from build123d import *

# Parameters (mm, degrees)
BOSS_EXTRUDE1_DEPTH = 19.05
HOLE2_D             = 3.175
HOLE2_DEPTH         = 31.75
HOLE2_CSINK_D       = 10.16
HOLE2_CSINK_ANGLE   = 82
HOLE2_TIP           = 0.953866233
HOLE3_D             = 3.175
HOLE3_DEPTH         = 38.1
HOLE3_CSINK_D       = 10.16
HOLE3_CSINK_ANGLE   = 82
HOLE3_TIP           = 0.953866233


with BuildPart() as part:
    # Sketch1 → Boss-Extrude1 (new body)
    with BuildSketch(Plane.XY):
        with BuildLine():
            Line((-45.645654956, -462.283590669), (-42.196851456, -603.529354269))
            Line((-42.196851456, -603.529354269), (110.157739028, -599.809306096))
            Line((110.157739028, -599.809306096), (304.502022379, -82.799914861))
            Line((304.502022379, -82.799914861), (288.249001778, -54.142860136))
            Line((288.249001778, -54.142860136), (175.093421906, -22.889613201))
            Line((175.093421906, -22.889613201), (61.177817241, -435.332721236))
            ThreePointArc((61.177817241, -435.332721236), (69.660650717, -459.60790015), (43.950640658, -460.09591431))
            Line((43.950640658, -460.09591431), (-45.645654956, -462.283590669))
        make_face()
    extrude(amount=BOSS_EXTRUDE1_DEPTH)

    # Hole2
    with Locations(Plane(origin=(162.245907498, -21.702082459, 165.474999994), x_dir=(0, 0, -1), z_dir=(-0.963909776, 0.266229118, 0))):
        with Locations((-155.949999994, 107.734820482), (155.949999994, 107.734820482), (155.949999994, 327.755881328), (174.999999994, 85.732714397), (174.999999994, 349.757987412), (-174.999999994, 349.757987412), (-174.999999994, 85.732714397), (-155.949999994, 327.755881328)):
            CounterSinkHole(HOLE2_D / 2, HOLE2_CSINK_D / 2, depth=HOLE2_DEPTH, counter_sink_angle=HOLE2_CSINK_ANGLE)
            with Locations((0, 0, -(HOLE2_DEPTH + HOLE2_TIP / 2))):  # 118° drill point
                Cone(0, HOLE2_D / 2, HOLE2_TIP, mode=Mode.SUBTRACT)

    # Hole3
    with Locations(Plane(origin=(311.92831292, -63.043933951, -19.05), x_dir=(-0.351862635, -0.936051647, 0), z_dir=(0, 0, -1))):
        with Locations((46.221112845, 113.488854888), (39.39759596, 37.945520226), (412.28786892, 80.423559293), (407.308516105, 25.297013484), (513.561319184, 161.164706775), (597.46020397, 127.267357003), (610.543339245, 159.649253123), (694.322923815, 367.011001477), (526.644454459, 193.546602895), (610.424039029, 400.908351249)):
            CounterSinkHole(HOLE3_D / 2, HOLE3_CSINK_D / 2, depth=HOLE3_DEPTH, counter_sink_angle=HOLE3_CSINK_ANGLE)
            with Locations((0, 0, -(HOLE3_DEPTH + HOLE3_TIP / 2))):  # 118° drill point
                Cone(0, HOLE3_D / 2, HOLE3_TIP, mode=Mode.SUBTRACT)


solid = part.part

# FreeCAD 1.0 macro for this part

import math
import FreeCAD as App
import Part
import Sketcher
from FreeCAD import Vector
Q = App.Units.Quantity

doc = App.newDocument("Part")
body = doc.addObject("PartDesign::Body", "Body")

sketch1 = body.newObject("Sketcher::SketchObject", "Sketch")
sketch1.AttachmentSupport = (doc.getObject("XY_Plane"), [""])
sketch1.MapMode = "FlatFace"
sketch1.addGeometry(Part.LineSegment(Vector(-45.645655, -462.283591, 0), Vector(-42.196851, -603.529354, 0)), False)
sketch1.addGeometry(Part.LineSegment(Vector(-42.196851, -603.529354, 0), Vector(110.157739, -599.809306, 0)), False)
sketch1.addGeometry(Part.LineSegment(Vector(110.157739, -599.809306, 0), Vector(304.502022, -82.799915, 0)), False)
sketch1.addGeometry(Part.LineSegment(Vector(304.502022, -82.799915, 0), Vector(288.249002, -54.14286, 0)), False)
sketch1.addGeometry(Part.LineSegment(Vector(288.249002, -54.14286, 0), Vector(175.093422, -22.889613, 0)), False)
sketch1.addGeometry(Part.LineSegment(Vector(175.093422, -22.889613, 0), Vector(61.177817, -435.332721, 0)), False)
sketch1.addGeometry(Part.ArcOfCircle(Part.Circle(Vector(56.628931, -450.542036, 0), Vector(0, 0, 1), 15.875), math.radians(-142.999707), math.radians(73.348834)), False)
sketch1.addGeometry(Part.LineSegment(Vector(43.950641, -460.095914, 0), Vector(-45.645655, -462.283591, 0)), False)
sketch1.addConstraint(Sketcher.Constraint("Coincident", 0, 2, 1, 1))
sketch1.addConstraint(Sketcher.Constraint("Coincident", 1, 2, 2, 1))
sketch1.addConstraint(Sketcher.Constraint("Coincident", 2, 2, 3, 1))
sketch1.addConstraint(Sketcher.Constraint("Coincident", 3, 2, 4, 1))
sketch1.addConstraint(Sketcher.Constraint("Coincident", 4, 2, 5, 1))
sketch1.addConstraint(Sketcher.Constraint("Coincident", 5, 2, 6, 2))
sketch1.addConstraint(Sketcher.Constraint("Coincident", 6, 1, 7, 1))
sketch1.addConstraint(Sketcher.Constraint("Coincident", 7, 2, 0, 1))
sketch1.addConstraint(Sketcher.Constraint("Perpendicular", 0, 1))
sketch1.addConstraint(Sketcher.Constraint("Perpendicular", 4, 5))
sketch1.addConstraint(Sketcher.Constraint("Parallel", 1, 7))
sketch1.addConstraint(Sketcher.Constraint("Distance", 1, Q("6 in")))
sketch1.addConstraint(Sketcher.Constraint("Radius", 6, Q("0.625 in")))
sketch1.addConstraint(Sketcher.Constraint("Angle", 3, Q("119.56 deg")))
sketch1.addConstraint(Sketcher.Constraint("Angle", 4, Q("164.56 deg")))
sketch1.addConstraint(Sketcher.Constraint("Distance", 7, 89.623))
sketch1.addConstraint(Sketcher.Constraint("DistanceX", -1, 1, 3, 2, 288.249002))
sketch1.addConstraint(Sketcher.Constraint("DistanceX", 4, 2, 2, 2, 129.4086))
sketch1.addConstraint(Sketcher.Constraint("DistanceY", 2, 2, 4, 2, 59.910302))
sketch1.addConstraint(Sketcher.Constraint("DistanceX", 6, 1, 1, 2, 66.207098))
sketch1.addConstraint(Sketcher.Constraint("DistanceY", 6, 1, 4, 2, 437.206301))
sketch1.addConstraint(Sketcher.Constraint("DistanceX", -1, 1, 6, 3, 56.628931))
sketch1.addConstraint(Sketcher.Constraint("DistanceX", 0, 2, -1, 1, 42.196851))
sketch1.addConstraint(Sketcher.Constraint("DistanceY", 3, 2, -1, 1, 54.14286))
sketch1.addConstraint(Sketcher.Constraint("DistanceY", 7, 2, -1, 1, 462.283591))
pad1 = body.newObject("PartDesign::Pad", "Pad")
pad1.Profile = sketch1
pad1.Length = Q("0.75 in")

sketch2 = body.newObject("Sketcher::SketchObject", "Sketch001")
sketch2.Placement = App.Placement(Vector(156.315458, -43.173882, 0), App.Rotation(Vector(0, 0, -1), Vector(-0.266229118, -0.963909776, 0), Vector(-0.963909776, 0.266229118, 0), "ZXY"))
sketch2.addGeometry(Part.Circle(Vector(-321.4, 85.5, 0), Vector(0, 0, 1), 1.6), False)
sketch2.addGeometry(Part.Circle(Vector(-9.5, 85.5, 0), Vector(0, 0, 1), 1.6), False)
sketch2.addGeometry(Part.Circle(Vector(-9.5, 305.5, 0), Vector(0, 0, 1), 1.6), False)
sketch2.addGeometry(Part.Circle(Vector(9.5, 63.5, 0), Vector(0, 0, 1), 1.6), False)
sketch2.addGeometry(Part.Circle(Vector(9.5, 327.5, 0), Vector(0, 0, 1), 1.6), False)
sketch2.addGeometry(Part.Circle(Vector(-340.5, 327.5, 0), Vector(0, 0, 1), 1.6), False)
sketch2.addGeometry(Part.Circle(Vector(-340.5, 63.5, 0), Vector(0, 0, 1), 1.6), False)
sketch2.addGeometry(Part.Circle(Vector(-321.4, 305.5, 0), Vector(0, 0, 1), 1.6), False)
sketch2.addConstraint(Sketcher.Constraint("Equal", 0, 1))
sketch2.addConstraint(Sketcher.Constraint("Equal", 1, 2))
sketch2.addConstraint(Sketcher.Constraint("Equal", 2, 3))
sketch2.addConstraint(Sketcher.Constraint("Equal", 3, 4))
sketch2.addConstraint(Sketcher.Constraint("Equal", 4, 5))
sketch2.addConstraint(Sketcher.Constraint("Equal", 5, 6))
sketch2.addConstraint(Sketcher.Constraint("Equal", 6, 7))
sketch2.addConstraint(Sketcher.Constraint("Horizontal", 0, 3, 1, 3))
sketch2.addConstraint(Sketcher.Constraint("Horizontal", 4, 3, 5, 3))
sketch2.addConstraint(Sketcher.Constraint("Horizontal", 3, 3, 6, 3))
sketch2.addConstraint(Sketcher.Constraint("Horizontal", 2, 3, 7, 3))
sketch2.addConstraint(Sketcher.Constraint("Vertical", 1, 3, 2, 3))
sketch2.addConstraint(Sketcher.Constraint("Vertical", 3, 3, 4, 3))
sketch2.addConstraint(Sketcher.Constraint("Vertical", 5, 3, 6, 3))
sketch2.addConstraint(Sketcher.Constraint("Vertical", 0, 3, 7, 3))
sketch2.addConstraint(Sketcher.Constraint("Diameter", 0, Q("0.125 in")))
sketch2.addConstraint(Sketcher.Constraint("DistanceX", 1, 3, 3, 3, Q("0.75 in")))
sketch2.addConstraint(Sketcher.Constraint("DistanceX", 5, 3, 0, 3, Q("0.75 in")))
sketch2.addConstraint(Sketcher.Constraint("DistanceX", 1, 3, -1, 1, Q("0.375 in")))
sketch2.addConstraint(Sketcher.Constraint("DistanceX", 0, 3, -1, 1, 321.425))
sketch2.addConstraint(Sketcher.Constraint("DistanceY", -1, 1, 3, 3, 63.456979))
sketch2.addConstraint(Sketcher.Constraint("DistanceY", -1, 1, 4, 3, 327.482252))
sketch2.addConstraint(Sketcher.Constraint("DistanceY", 1, 3, 2, 3, 220.021061))
sketch2.addConstraint(Sketcher.Constraint("DistanceY", -1, 1, 0, 3, 85.459085))
doc.recompute()
hole = body.newObject("PartDesign::Hole", "Hole")
hole.Profile = sketch2
hole.ThreadType = "None"
hole.Diameter = Q("0.125 in")
hole.DepthType = "Dimension"
hole.Depth = Q("1.25 in")
hole.DrillPoint = "Angled"
hole.DrillPointAngle = 118
hole.HoleCutType = "Countersink"
hole.HoleCutDiameter = Q("0.4 in")
hole.HoleCutCountersinkAngle = 82

sketch3 = body.newObject("Sketcher::SketchObject", "Sketch002")
sketch3.AttachmentSupport = (doc.getObject("XY_Plane"), [""])
sketch3.MapMode = "FlatFace"
sketch3.AttachmentOffset = App.Placement(Vector(0, 0, -0.75 * 25.4), App.Rotation())
sketch3.addGeometry(Part.Circle(Vector(189.4, -66.4, 0), Vector(0, 0, 1), 1.6), False)
sketch3.addGeometry(Part.Circle(Vector(262.5, -86.6, 0), Vector(0, 0, 1), 1.6), False)
sketch3.addGeometry(Part.Circle(Vector(91.6, -420.7, 0), Vector(0, 0, 1), 1.6), False)
sketch3.addGeometry(Part.Circle(Vector(144.9, -435.4, 0), Vector(0, 0, 1), 1.6), False)
sketch3.addGeometry(Part.Circle(Vector(-19.6, -487.1, 0), Vector(0, 0, 1), 1.6), False)
sketch3.addGeometry(Part.Circle(Vector(-17.4, -577.5, 0), Vector(0, 0, 1), 1.6), False)
sketch3.addGeometry(Part.Circle(Vector(-52.3, -578.4, 0), Vector(0, 0, 1), 1.6), False)
sketch3.addGeometry(Part.Circle(Vector(-275.9, -583.8, 0), Vector(0, 0, 1), 1.6), False)
sketch3.addGeometry(Part.Circle(Vector(-54.5, -487.9, 0), Vector(0, 0, 1), 1.6), False)
sketch3.addGeometry(Part.Circle(Vector(-278.1, -493.4, 0), Vector(0, 0, 1), 1.6), False)
sketch3.addConstraint(Sketcher.Constraint("Equal", 0, 1))
sketch3.addConstraint(Sketcher.Constraint("Equal", 1, 2))
sketch3.addConstraint(Sketcher.Constraint("Equal", 2, 3))
sketch3.addConstraint(Sketcher.Constraint("Equal", 3, 4))
sketch3.addConstraint(Sketcher.Constraint("Equal", 4, 5))
sketch3.addConstraint(Sketcher.Constraint("Equal", 5, 6))
sketch3.addConstraint(Sketcher.Constraint("Equal", 6, 7))
sketch3.addConstraint(Sketcher.Constraint("Equal", 7, 8))
sketch3.addConstraint(Sketcher.Constraint("Equal", 8, 9))
sketch3.addConstraint(Sketcher.Constraint("Diameter", 0, Q("0.125 in")))
sketch3.addConstraint(Sketcher.Constraint("DistanceX", -1, 1, 0, 3, 189.433401))
sketch3.addConstraint(Sketcher.Constraint("DistanceY", 5, 3, 4, 3, 90.4609))
sketch3.addConstraint(Sketcher.Constraint("DistanceY", 6, 3, 2, 3, 157.700798))
sketch3.addConstraint(Sketcher.Constraint("DistanceY", 6, 3, 8, 3, 90.4609))
sketch3.addConstraint(Sketcher.Constraint("DistanceY", 7, 3, 9, 3, 90.4609))
sketch3.addConstraint(Sketcher.Constraint("DistanceX", 9, 3, 6, 3, 225.788999))
sketch3.addConstraint(Sketcher.Constraint("DistanceX", -1, 1, 2, 3, 91.579012))
sketch3.addConstraint(Sketcher.Constraint("DistanceX", 6, 3, -1, 1, 52.339022))
sketch3.addConstraint(Sketcher.Constraint("DistanceX", 8, 3, -1, 1, 54.547809))
sketch3.addConstraint(Sketcher.Constraint("DistanceY", 2, 3, 0, 3, 354.291832))
sketch3.addConstraint(Sketcher.Constraint("DistanceY", 2, 3, 1, 3, 334.098119))
sketch3.addConstraint(Sketcher.Constraint("DistanceY", 3, 3, 2, 3, 14.73604))
sketch3.addConstraint(Sketcher.Constraint("DistanceX", 3, 3, 1, 3, 117.61445))
sketch3.addConstraint(Sketcher.Constraint("DistanceX", 4, 3, 3, 3, 164.565569))
sketch3.addConstraint(Sketcher.Constraint("DistanceY", 4, 3, 0, 3, 420.679219))
sketch3.addConstraint(Sketcher.Constraint("DistanceX", 5, 3, 2, 3, 109.00344))
sketch3.addConstraint(Sketcher.Constraint("DistanceX", 5, 3, 3, 3, 162.356782))
sketch3.addConstraint(Sketcher.Constraint("DistanceX", 7, 3, 6, 3, 223.580211))
sketch3.addConstraint(Sketcher.Constraint("DistanceY", 7, 3, 4, 3, 96.772578))
sketch3.addConstraint(Sketcher.Constraint("DistanceY", 0, 3, -1, 1, 66.376795))
doc.recompute()
hole2 = body.newObject("PartDesign::Hole", "Hole001")
hole2.Profile = sketch3
hole2.ThreadType = "None"
hole2.Diameter = Q("0.125 in")
hole2.DepthType = "Dimension"
hole2.Depth = Q("1.5 in")
hole2.DrillPoint = "Angled"
hole2.DrillPointAngle = 118
hole2.HoleCutType = "Countersink"
hole2.HoleCutDiameter = Q("0.4 in")
hole2.HoleCutCountersinkAngle = 82
hole2.Reversed = True

doc.recompute()
